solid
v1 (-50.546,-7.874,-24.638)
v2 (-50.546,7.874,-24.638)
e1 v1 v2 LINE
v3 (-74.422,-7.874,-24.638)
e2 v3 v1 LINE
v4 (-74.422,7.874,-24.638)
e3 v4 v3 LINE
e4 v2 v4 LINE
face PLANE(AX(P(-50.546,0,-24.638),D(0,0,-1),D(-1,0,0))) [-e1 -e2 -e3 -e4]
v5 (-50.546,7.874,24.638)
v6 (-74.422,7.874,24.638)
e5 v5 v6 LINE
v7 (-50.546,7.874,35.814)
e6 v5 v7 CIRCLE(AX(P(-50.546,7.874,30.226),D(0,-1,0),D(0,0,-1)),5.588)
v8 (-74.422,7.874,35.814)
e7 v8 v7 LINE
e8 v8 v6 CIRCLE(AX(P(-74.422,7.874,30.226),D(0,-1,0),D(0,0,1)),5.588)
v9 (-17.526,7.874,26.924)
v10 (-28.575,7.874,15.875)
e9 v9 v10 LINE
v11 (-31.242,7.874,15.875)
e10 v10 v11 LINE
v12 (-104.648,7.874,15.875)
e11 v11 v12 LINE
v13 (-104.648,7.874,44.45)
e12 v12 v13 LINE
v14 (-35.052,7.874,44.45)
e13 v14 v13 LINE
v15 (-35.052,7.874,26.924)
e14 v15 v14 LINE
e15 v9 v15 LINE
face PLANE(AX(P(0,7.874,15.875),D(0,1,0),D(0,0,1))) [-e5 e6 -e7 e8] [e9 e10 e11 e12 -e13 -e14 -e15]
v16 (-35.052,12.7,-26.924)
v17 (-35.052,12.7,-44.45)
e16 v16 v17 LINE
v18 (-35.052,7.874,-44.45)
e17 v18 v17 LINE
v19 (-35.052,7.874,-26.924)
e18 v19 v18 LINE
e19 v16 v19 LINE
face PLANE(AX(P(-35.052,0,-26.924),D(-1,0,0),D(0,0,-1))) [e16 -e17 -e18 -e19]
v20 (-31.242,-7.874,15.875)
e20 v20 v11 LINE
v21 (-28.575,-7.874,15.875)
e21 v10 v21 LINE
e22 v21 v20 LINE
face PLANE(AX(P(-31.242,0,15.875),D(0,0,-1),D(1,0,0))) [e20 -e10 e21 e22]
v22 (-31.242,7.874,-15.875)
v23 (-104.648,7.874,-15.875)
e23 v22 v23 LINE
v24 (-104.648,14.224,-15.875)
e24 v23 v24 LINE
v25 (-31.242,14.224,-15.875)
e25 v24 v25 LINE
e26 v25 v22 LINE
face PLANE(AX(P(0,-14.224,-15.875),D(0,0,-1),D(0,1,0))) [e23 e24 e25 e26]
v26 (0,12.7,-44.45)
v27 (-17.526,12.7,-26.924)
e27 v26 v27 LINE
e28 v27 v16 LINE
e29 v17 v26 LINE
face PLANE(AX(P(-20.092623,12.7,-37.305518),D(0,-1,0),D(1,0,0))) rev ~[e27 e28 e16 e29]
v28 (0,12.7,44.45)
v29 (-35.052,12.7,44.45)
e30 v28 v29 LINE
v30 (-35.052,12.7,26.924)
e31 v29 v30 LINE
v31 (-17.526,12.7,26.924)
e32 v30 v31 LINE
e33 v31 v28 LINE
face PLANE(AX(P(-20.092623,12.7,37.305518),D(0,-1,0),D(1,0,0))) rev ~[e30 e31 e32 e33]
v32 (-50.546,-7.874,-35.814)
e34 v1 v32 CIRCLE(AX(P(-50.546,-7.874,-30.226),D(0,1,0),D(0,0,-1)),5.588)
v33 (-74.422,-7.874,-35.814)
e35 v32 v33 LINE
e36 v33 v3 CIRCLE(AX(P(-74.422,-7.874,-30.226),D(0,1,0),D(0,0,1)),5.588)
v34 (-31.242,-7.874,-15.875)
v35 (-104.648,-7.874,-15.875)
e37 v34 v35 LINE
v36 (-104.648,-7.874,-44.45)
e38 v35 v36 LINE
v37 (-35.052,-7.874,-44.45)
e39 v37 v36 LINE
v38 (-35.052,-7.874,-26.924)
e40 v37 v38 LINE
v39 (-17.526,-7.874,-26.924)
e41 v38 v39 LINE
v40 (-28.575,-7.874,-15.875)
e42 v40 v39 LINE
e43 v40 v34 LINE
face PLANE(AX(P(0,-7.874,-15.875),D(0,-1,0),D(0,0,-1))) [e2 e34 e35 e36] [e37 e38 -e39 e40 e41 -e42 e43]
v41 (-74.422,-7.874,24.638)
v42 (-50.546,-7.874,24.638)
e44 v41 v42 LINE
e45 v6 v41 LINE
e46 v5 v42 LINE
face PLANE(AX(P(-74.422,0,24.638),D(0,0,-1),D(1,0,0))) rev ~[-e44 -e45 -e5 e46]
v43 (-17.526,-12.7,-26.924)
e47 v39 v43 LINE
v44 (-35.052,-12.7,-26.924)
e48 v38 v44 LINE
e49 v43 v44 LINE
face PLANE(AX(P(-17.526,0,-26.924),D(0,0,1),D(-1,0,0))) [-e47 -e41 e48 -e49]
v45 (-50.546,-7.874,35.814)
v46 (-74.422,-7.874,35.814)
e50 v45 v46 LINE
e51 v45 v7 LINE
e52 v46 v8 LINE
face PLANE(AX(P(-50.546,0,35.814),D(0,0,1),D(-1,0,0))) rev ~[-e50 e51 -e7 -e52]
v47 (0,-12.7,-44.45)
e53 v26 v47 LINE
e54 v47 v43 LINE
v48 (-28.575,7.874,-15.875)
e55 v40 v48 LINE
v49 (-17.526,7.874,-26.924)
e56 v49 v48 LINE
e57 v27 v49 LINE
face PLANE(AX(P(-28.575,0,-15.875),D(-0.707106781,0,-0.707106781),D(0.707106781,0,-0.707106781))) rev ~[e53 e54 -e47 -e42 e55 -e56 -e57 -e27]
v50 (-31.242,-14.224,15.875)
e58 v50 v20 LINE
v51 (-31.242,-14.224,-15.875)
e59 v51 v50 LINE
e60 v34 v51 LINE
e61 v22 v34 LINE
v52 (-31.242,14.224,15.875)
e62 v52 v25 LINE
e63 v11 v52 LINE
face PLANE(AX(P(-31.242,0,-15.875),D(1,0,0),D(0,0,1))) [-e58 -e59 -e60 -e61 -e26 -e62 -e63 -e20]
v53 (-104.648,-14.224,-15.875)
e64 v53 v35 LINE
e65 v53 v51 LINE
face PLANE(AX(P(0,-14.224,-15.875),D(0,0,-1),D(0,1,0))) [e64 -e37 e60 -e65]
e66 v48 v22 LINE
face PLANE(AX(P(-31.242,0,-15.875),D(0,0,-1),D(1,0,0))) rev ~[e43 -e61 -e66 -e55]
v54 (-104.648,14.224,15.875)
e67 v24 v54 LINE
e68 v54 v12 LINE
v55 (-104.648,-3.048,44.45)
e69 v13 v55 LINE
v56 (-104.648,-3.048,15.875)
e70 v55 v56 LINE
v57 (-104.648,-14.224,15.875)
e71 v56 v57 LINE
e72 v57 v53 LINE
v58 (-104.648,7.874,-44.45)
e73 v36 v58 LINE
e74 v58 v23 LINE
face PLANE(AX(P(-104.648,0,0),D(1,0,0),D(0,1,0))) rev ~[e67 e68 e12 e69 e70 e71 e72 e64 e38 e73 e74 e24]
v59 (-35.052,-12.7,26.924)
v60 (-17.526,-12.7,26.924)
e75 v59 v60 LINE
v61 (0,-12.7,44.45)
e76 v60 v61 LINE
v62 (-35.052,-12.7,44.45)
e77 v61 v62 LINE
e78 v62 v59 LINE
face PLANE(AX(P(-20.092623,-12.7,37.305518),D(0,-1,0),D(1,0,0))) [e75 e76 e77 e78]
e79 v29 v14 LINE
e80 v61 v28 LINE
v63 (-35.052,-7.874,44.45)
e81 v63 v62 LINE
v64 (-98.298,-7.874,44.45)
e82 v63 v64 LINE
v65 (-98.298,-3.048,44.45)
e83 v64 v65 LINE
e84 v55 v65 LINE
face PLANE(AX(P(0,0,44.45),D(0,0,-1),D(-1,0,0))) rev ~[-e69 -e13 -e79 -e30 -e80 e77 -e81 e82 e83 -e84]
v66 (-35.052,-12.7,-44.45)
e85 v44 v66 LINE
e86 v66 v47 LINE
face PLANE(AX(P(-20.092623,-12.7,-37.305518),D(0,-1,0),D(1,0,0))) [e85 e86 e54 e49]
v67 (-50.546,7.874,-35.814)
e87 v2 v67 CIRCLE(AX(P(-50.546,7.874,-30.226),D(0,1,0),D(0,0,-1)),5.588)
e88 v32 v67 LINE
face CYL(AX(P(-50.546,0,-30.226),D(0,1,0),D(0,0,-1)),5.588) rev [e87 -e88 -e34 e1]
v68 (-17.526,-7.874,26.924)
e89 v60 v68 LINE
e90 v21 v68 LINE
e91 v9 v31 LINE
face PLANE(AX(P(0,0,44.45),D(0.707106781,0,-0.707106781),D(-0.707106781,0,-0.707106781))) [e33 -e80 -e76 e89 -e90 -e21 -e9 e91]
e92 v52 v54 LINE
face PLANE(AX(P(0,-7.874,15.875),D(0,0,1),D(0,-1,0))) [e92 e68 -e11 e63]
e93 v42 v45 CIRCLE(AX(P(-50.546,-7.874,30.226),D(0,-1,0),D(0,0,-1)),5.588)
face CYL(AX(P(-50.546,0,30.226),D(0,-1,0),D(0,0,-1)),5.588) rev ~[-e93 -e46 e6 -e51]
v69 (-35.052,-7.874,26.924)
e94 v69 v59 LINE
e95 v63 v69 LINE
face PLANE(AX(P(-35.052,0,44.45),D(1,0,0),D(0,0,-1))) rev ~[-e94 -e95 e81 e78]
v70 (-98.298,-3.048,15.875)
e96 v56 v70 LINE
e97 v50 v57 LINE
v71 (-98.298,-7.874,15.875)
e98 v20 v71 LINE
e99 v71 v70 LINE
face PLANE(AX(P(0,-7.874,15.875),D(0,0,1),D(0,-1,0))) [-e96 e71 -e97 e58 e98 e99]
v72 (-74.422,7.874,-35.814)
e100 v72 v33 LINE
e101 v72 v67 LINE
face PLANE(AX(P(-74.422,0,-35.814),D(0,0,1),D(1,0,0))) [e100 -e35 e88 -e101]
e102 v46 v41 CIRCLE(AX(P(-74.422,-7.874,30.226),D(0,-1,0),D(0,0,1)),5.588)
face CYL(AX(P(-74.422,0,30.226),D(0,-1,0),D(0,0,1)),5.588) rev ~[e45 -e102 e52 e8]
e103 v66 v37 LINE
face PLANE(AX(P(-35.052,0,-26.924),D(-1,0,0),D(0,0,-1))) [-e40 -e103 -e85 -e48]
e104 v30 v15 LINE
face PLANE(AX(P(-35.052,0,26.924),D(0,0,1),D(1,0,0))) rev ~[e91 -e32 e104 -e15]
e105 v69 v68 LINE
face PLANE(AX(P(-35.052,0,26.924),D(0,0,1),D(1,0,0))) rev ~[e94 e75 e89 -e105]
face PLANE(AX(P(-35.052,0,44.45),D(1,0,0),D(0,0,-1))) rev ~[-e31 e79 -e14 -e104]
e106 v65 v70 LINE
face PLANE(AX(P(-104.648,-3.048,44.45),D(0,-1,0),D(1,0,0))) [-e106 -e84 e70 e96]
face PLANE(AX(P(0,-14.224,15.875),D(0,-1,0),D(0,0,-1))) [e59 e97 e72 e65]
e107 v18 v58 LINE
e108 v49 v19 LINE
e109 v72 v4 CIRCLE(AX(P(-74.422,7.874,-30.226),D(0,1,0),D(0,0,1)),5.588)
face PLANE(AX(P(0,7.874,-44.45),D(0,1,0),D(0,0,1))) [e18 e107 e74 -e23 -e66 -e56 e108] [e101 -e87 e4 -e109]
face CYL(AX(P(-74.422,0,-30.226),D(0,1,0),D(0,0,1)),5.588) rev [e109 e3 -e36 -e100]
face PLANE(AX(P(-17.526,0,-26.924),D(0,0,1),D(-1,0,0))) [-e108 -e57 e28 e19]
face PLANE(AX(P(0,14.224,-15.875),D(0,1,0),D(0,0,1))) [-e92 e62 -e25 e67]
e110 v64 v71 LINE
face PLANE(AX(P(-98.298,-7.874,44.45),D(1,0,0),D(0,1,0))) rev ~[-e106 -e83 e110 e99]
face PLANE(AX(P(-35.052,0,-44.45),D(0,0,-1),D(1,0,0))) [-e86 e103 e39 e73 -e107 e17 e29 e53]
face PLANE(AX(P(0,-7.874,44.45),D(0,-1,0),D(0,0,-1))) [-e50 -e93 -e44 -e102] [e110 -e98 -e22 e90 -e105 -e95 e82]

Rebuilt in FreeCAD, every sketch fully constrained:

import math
import FreeCAD as App
import Part
import Sketcher

V = App.Vector
Q = App.Units.Quantity


def add_polygon(sketch, points):
    """Adds a closed chain of lines whose ends are joined by coincident constraints."""
    first, n = sketch.GeometryCount, len(points)
    for a, b in zip(points, points[1:] + points[:1]):
        sketch.addGeometry(Part.LineSegment(App.Vector(*a, 0), App.Vector(*b, 0)), False)
    for i in range(n):
        sketch.addConstraint(Sketcher.Constraint("Coincident", first + i, 2, first + (i + 1) % n, 1))

doc = App.newDocument("Part")
body = doc.addObject("PartDesign::Body", "Body")

sketch1 = body.newObject("Sketcher::SketchObject", "Sketch")
sketch1.AttachmentSupport = (doc.getObject("YZ_Plane"), [""])
sketch1.MapMode = "FlatFace"
add_polygon(sketch1, [(-14.224, 15.875), (-14.224, -15.875), (-7.874, -15.875), (-7.874, -44.45), (7.874, -44.45), (7.874, -15.875), (14.224, -15.875), (14.224, 15.875), (7.874, 15.875), (7.874, 44.45), (-7.874, 44.45), (-7.874, 15.875)])
sketch1.addConstraint([
    Sketcher.Constraint("Vertical", 0),
    Sketcher.Constraint("Horizontal", 1),
    Sketcher.Constraint("Vertical", 2),
    Sketcher.Constraint("Horizontal", 3),
    Sketcher.Constraint("Vertical", 4),
    Sketcher.Constraint("Horizontal", 5),
    Sketcher.Constraint("Vertical", 6),
    Sketcher.Constraint("Horizontal", 7),
    Sketcher.Constraint("Vertical", 8),
    Sketcher.Constraint("Horizontal", 9),
    Sketcher.Constraint("Vertical", 10),
    Sketcher.Constraint("Horizontal", 11),
    Sketcher.Constraint("Symmetric", 0, 2, 6, 2, -1, 1),
    Sketcher.Constraint("Symmetric", 2, 2, 8, 2, -1, 1),
    Sketcher.Constraint("Symmetric", 4, 2, 10, 2, -1, 1),
    Sketcher.Constraint("Symmetric", 1, 2, 4, 2, -2),
    Sketcher.Constraint("DistanceX", 1, 1, 1, 2, Q("0.25 in")),
    Sketcher.Constraint("DistanceX", 3, 1, 3, 2, Q("0.62 in")),
    Sketcher.Constraint("DistanceY", 0, 2, 0, 1, Q("1.25 in")),
    Sketcher.Constraint("DistanceY", 2, 2, 2, 1, Q("1.125 in")),
])
pad1 = body.newObject("PartDesign::Pad", "Pad")
pad1.Profile = sketch1
pad1.Length = Q("4.12 in")
pad1.Reversed = True

sketch2 = body.newObject("Sketcher::SketchObject", "Sketch001")
sketch2.AttachmentSupport = (doc.getObject("XY_Plane"), [""])
sketch2.MapMode = "FlatFace"
sketch2.AttachmentOffset = App.Placement(V(0, 0, 1.75 * 25.4), App.Rotation())
add_polygon(sketch2, [(-104.648, -3.048), (-104.648, -7.874), (-98.298, -7.874), (-98.298, -3.048)])
sketch2.addConstraint([
    Sketcher.Constraint("Vertical", 0),
    Sketcher.Constraint("Horizontal", 1),
    Sketcher.Constraint("Vertical", 2),
    Sketcher.Constraint("Horizontal", 3),
    Sketcher.Constraint("DistanceX", 1, 1, 1, 2, Q("0.25 in")),
    Sketcher.Constraint("DistanceY", 0, 2, 0, 1, Q("0.19 in")),
    Sketcher.Constraint("DistanceX", 0, 2, -1, 1, Q("4.12 in")),
    Sketcher.Constraint("DistanceY", 0, 2, -1, 1, Q("0.31 in")),
])
pocket1 = body.newObject("PartDesign::Pocket", "Pocket")
pocket1.Profile = sketch2
pocket1.Length = Q("1.125 in")

sketch3 = body.newObject("Sketcher::SketchObject", "Sketch002")
sketch3.AttachmentSupport = (doc.getObject("XZ_Plane"), [""])
sketch3.MapMode = "FlatFace"
sketch3.addGeometry([
    Part.LineSegment(V(-50.546, -24.638, 0), V(-74.422, -24.638, 0)),
    Part.ArcOfCircle(Part.Circle(V(-74.422, -30.226, 0), V(0, 0, 1), 5.588), math.radians(90), math.radians(270)),
    Part.LineSegment(V(-74.422, -35.814, 0), V(-50.546, -35.814, 0)),
    Part.ArcOfCircle(Part.Circle(V(-50.546, -30.226, 0), V(0, 0, 1), 5.588), math.radians(-90), math.radians(90)),
    Part.ArcOfCircle(Part.Circle(V(-74.422, 30.226, 0), V(0, 0, 1), 5.588), math.radians(90), math.radians(270)),
    Part.LineSegment(V(-74.422, 24.638, 0), V(-50.546, 24.638, 0)),
    Part.ArcOfCircle(Part.Circle(V(-50.546, 30.226, 0), V(0, 0, 1), 5.588), math.radians(-90), math.radians(90)),
    Part.LineSegment(V(-50.546, 35.814, 0), V(-74.422, 35.814, 0)),
], False)
sketch3.addConstraint([
    Sketcher.Constraint("Tangent", 0, 2, 1, 1),
    Sketcher.Constraint("Tangent", 1, 2, 2, 1),
    Sketcher.Constraint("Tangent", 2, 2, 3, 1),
    Sketcher.Constraint("Tangent", 3, 2, 0, 1),
    Sketcher.Constraint("Tangent", 4, 2, 5, 1),
    Sketcher.Constraint("Tangent", 5, 2, 6, 1),
    Sketcher.Constraint("Tangent", 6, 2, 7, 1),
    Sketcher.Constraint("Tangent", 7, 2, 4, 1),
    Sketcher.Constraint("Horizontal", 0),
    Sketcher.Constraint("Horizontal", 2),
    Sketcher.Constraint("Horizontal", 5),
    Sketcher.Constraint("Horizontal", 7),
    Sketcher.Constraint("Equal", 3, 4),
    Sketcher.Constraint("Symmetric", 1, 3, 4, 3, -1),
    Sketcher.Constraint("Vertical", 3, 3, 6, 3),
    Sketcher.Constraint("Radius", 1, Q("0.22 in")),
    Sketcher.Constraint("DistanceX", 0, 2, 0, 1, Q("0.94 in")),
    Sketcher.Constraint("DistanceY", 1, 2, 4, 3, Q("2.6 in")),
    Sketcher.Constraint("DistanceX", 1, 3, -1, 1, Q("2.93 in")),
])
pocket2 = body.newObject("PartDesign::Pocket", "Pocket001")
pocket2.Profile = sketch3
pocket2.Length = Q("5.4 in")
pocket2.Midplane = True
body2 = doc.addObject("PartDesign::Body", "Body001")
body2.AllowCompound = True

sketch4 = body2.newObject("Sketcher::SketchObject", "Sketch003")
sketch4.AttachmentSupport = (doc.getObject("XZ_Plane001"), [""])
sketch4.MapMode = "FlatFace"
add_polygon(sketch4, [(0, 44.45), (-35.052, 44.45), (-35.052, 26.924), (-17.526, 26.924)])
add_polygon(sketch4, [(0, -44.45), (-17.526, -26.924), (-35.052, -26.924), (-35.052, -44.45)])
sketch4.addConstraint([
    Sketcher.Constraint("Horizontal", 0),
    Sketcher.Constraint("Vertical", 1),
    Sketcher.Constraint("Horizontal", 2),
    Sketcher.Constraint("Horizontal", 5),
    Sketcher.Constraint("Vertical", 6),
    Sketcher.Constraint("Horizontal", 7),
    Sketcher.Constraint("Symmetric", 3, 2, 7, 2, -1, 1),
    Sketcher.Constraint("Symmetric", 2, 2, 4, 2, -1),
    Sketcher.Constraint("PointOnObject", 3, 2, -2),
    Sketcher.Constraint("Perpendicular", 3, 4),
    Sketcher.Constraint("Vertical", 1, 2, 5, 2),
    Sketcher.Constraint("Equal", 5, 1),
    Sketcher.Constraint("DistanceX", 0, 2, 0, 1, Q("1.38 in")),
    Sketcher.Constraint("DistanceY", 6, 2, 0, 2, Q("3.5 in")),
])
pad2 = body2.newObject("PartDesign::Pad", "Pad001")
pad2.Profile = sketch4
pad2.Length = Q("1 in")
pad2.Midplane = True
doc.recompute()

boolean = body2.newObject("PartDesign::Boolean", "Boolean")
boolean.Type = "Fuse"
boolean.addObjects([body])

sketch5 = body2.newObject("Sketcher::SketchObject", "Sketch004")
sketch5.AttachmentSupport = (doc.getObject("XZ_Plane001"), [""])
sketch5.MapMode = "FlatFace"
add_polygon(sketch5, [(0, 44.45), (-28.575, 15.875), (0, 15.875)])
add_polygon(sketch5, [(-28.575, -15.875), (0, -44.45), (0, -15.875)])
sketch5.addConstraint([
    Sketcher.Constraint("Horizontal", 1),
    Sketcher.Constraint("Vertical", 2),
    Sketcher.Constraint("Vertical", 4),
    Sketcher.Constraint("Horizontal", 5),
    Sketcher.Constraint("Symmetric", 2, 2, 3, 2, -1, 1),
    Sketcher.Constraint("Symmetric", 1, 2, 4, 2, -1),
    Sketcher.Constraint("Perpendicular", 0, 3),
    Sketcher.Constraint("Vertical", 0, 2, 5, 2),
    Sketcher.Constraint("DistanceY", 3, 2, 2, 2, Q("3.5 in")),
    Sketcher.Constraint("DistanceX", 1, 1, 1, 2, Q("1.125 in")),
])
pocket3 = body2.newObject("PartDesign::Pocket", "Pocket002")
pocket3.Profile = sketch5
pocket3.Length = Q("3.08 in")
pocket3.Midplane = True

sketch6 = body2.newObject("Sketcher::SketchObject", "Sketch005")
sketch6.AttachmentSupport = (doc.getObject("XZ_Plane001"), [""])
sketch6.MapMode = "FlatFace"
add_polygon(sketch6, [(-31.242, 15.875), (-31.242, -15.875), (0, -15.875), (0, 15.875)])
sketch6.addConstraint([
    Sketcher.Constraint("Vertical", 0),
    Sketcher.Constraint("Horizontal", 1),
    Sketcher.Constraint("Vertical", 2),
    Sketcher.Constraint("Horizontal", 3),
    Sketcher.Constraint("Symmetric", 1, 2, 2, 2, -1, 1),
    Sketcher.Constraint("DistanceX", 1, 1, 1, 2, Q("1.23 in")),
    Sketcher.Constraint("DistanceY", 0, 2, 0, 1, Q("1.25 in")),
])
pocket4 = body2.newObject("PartDesign::Pocket", "Pocket003")
pocket4.Profile = sketch6
pocket4.Length = Q("5.3 in")
pocket4.Midplane = True

doc.recompute()
